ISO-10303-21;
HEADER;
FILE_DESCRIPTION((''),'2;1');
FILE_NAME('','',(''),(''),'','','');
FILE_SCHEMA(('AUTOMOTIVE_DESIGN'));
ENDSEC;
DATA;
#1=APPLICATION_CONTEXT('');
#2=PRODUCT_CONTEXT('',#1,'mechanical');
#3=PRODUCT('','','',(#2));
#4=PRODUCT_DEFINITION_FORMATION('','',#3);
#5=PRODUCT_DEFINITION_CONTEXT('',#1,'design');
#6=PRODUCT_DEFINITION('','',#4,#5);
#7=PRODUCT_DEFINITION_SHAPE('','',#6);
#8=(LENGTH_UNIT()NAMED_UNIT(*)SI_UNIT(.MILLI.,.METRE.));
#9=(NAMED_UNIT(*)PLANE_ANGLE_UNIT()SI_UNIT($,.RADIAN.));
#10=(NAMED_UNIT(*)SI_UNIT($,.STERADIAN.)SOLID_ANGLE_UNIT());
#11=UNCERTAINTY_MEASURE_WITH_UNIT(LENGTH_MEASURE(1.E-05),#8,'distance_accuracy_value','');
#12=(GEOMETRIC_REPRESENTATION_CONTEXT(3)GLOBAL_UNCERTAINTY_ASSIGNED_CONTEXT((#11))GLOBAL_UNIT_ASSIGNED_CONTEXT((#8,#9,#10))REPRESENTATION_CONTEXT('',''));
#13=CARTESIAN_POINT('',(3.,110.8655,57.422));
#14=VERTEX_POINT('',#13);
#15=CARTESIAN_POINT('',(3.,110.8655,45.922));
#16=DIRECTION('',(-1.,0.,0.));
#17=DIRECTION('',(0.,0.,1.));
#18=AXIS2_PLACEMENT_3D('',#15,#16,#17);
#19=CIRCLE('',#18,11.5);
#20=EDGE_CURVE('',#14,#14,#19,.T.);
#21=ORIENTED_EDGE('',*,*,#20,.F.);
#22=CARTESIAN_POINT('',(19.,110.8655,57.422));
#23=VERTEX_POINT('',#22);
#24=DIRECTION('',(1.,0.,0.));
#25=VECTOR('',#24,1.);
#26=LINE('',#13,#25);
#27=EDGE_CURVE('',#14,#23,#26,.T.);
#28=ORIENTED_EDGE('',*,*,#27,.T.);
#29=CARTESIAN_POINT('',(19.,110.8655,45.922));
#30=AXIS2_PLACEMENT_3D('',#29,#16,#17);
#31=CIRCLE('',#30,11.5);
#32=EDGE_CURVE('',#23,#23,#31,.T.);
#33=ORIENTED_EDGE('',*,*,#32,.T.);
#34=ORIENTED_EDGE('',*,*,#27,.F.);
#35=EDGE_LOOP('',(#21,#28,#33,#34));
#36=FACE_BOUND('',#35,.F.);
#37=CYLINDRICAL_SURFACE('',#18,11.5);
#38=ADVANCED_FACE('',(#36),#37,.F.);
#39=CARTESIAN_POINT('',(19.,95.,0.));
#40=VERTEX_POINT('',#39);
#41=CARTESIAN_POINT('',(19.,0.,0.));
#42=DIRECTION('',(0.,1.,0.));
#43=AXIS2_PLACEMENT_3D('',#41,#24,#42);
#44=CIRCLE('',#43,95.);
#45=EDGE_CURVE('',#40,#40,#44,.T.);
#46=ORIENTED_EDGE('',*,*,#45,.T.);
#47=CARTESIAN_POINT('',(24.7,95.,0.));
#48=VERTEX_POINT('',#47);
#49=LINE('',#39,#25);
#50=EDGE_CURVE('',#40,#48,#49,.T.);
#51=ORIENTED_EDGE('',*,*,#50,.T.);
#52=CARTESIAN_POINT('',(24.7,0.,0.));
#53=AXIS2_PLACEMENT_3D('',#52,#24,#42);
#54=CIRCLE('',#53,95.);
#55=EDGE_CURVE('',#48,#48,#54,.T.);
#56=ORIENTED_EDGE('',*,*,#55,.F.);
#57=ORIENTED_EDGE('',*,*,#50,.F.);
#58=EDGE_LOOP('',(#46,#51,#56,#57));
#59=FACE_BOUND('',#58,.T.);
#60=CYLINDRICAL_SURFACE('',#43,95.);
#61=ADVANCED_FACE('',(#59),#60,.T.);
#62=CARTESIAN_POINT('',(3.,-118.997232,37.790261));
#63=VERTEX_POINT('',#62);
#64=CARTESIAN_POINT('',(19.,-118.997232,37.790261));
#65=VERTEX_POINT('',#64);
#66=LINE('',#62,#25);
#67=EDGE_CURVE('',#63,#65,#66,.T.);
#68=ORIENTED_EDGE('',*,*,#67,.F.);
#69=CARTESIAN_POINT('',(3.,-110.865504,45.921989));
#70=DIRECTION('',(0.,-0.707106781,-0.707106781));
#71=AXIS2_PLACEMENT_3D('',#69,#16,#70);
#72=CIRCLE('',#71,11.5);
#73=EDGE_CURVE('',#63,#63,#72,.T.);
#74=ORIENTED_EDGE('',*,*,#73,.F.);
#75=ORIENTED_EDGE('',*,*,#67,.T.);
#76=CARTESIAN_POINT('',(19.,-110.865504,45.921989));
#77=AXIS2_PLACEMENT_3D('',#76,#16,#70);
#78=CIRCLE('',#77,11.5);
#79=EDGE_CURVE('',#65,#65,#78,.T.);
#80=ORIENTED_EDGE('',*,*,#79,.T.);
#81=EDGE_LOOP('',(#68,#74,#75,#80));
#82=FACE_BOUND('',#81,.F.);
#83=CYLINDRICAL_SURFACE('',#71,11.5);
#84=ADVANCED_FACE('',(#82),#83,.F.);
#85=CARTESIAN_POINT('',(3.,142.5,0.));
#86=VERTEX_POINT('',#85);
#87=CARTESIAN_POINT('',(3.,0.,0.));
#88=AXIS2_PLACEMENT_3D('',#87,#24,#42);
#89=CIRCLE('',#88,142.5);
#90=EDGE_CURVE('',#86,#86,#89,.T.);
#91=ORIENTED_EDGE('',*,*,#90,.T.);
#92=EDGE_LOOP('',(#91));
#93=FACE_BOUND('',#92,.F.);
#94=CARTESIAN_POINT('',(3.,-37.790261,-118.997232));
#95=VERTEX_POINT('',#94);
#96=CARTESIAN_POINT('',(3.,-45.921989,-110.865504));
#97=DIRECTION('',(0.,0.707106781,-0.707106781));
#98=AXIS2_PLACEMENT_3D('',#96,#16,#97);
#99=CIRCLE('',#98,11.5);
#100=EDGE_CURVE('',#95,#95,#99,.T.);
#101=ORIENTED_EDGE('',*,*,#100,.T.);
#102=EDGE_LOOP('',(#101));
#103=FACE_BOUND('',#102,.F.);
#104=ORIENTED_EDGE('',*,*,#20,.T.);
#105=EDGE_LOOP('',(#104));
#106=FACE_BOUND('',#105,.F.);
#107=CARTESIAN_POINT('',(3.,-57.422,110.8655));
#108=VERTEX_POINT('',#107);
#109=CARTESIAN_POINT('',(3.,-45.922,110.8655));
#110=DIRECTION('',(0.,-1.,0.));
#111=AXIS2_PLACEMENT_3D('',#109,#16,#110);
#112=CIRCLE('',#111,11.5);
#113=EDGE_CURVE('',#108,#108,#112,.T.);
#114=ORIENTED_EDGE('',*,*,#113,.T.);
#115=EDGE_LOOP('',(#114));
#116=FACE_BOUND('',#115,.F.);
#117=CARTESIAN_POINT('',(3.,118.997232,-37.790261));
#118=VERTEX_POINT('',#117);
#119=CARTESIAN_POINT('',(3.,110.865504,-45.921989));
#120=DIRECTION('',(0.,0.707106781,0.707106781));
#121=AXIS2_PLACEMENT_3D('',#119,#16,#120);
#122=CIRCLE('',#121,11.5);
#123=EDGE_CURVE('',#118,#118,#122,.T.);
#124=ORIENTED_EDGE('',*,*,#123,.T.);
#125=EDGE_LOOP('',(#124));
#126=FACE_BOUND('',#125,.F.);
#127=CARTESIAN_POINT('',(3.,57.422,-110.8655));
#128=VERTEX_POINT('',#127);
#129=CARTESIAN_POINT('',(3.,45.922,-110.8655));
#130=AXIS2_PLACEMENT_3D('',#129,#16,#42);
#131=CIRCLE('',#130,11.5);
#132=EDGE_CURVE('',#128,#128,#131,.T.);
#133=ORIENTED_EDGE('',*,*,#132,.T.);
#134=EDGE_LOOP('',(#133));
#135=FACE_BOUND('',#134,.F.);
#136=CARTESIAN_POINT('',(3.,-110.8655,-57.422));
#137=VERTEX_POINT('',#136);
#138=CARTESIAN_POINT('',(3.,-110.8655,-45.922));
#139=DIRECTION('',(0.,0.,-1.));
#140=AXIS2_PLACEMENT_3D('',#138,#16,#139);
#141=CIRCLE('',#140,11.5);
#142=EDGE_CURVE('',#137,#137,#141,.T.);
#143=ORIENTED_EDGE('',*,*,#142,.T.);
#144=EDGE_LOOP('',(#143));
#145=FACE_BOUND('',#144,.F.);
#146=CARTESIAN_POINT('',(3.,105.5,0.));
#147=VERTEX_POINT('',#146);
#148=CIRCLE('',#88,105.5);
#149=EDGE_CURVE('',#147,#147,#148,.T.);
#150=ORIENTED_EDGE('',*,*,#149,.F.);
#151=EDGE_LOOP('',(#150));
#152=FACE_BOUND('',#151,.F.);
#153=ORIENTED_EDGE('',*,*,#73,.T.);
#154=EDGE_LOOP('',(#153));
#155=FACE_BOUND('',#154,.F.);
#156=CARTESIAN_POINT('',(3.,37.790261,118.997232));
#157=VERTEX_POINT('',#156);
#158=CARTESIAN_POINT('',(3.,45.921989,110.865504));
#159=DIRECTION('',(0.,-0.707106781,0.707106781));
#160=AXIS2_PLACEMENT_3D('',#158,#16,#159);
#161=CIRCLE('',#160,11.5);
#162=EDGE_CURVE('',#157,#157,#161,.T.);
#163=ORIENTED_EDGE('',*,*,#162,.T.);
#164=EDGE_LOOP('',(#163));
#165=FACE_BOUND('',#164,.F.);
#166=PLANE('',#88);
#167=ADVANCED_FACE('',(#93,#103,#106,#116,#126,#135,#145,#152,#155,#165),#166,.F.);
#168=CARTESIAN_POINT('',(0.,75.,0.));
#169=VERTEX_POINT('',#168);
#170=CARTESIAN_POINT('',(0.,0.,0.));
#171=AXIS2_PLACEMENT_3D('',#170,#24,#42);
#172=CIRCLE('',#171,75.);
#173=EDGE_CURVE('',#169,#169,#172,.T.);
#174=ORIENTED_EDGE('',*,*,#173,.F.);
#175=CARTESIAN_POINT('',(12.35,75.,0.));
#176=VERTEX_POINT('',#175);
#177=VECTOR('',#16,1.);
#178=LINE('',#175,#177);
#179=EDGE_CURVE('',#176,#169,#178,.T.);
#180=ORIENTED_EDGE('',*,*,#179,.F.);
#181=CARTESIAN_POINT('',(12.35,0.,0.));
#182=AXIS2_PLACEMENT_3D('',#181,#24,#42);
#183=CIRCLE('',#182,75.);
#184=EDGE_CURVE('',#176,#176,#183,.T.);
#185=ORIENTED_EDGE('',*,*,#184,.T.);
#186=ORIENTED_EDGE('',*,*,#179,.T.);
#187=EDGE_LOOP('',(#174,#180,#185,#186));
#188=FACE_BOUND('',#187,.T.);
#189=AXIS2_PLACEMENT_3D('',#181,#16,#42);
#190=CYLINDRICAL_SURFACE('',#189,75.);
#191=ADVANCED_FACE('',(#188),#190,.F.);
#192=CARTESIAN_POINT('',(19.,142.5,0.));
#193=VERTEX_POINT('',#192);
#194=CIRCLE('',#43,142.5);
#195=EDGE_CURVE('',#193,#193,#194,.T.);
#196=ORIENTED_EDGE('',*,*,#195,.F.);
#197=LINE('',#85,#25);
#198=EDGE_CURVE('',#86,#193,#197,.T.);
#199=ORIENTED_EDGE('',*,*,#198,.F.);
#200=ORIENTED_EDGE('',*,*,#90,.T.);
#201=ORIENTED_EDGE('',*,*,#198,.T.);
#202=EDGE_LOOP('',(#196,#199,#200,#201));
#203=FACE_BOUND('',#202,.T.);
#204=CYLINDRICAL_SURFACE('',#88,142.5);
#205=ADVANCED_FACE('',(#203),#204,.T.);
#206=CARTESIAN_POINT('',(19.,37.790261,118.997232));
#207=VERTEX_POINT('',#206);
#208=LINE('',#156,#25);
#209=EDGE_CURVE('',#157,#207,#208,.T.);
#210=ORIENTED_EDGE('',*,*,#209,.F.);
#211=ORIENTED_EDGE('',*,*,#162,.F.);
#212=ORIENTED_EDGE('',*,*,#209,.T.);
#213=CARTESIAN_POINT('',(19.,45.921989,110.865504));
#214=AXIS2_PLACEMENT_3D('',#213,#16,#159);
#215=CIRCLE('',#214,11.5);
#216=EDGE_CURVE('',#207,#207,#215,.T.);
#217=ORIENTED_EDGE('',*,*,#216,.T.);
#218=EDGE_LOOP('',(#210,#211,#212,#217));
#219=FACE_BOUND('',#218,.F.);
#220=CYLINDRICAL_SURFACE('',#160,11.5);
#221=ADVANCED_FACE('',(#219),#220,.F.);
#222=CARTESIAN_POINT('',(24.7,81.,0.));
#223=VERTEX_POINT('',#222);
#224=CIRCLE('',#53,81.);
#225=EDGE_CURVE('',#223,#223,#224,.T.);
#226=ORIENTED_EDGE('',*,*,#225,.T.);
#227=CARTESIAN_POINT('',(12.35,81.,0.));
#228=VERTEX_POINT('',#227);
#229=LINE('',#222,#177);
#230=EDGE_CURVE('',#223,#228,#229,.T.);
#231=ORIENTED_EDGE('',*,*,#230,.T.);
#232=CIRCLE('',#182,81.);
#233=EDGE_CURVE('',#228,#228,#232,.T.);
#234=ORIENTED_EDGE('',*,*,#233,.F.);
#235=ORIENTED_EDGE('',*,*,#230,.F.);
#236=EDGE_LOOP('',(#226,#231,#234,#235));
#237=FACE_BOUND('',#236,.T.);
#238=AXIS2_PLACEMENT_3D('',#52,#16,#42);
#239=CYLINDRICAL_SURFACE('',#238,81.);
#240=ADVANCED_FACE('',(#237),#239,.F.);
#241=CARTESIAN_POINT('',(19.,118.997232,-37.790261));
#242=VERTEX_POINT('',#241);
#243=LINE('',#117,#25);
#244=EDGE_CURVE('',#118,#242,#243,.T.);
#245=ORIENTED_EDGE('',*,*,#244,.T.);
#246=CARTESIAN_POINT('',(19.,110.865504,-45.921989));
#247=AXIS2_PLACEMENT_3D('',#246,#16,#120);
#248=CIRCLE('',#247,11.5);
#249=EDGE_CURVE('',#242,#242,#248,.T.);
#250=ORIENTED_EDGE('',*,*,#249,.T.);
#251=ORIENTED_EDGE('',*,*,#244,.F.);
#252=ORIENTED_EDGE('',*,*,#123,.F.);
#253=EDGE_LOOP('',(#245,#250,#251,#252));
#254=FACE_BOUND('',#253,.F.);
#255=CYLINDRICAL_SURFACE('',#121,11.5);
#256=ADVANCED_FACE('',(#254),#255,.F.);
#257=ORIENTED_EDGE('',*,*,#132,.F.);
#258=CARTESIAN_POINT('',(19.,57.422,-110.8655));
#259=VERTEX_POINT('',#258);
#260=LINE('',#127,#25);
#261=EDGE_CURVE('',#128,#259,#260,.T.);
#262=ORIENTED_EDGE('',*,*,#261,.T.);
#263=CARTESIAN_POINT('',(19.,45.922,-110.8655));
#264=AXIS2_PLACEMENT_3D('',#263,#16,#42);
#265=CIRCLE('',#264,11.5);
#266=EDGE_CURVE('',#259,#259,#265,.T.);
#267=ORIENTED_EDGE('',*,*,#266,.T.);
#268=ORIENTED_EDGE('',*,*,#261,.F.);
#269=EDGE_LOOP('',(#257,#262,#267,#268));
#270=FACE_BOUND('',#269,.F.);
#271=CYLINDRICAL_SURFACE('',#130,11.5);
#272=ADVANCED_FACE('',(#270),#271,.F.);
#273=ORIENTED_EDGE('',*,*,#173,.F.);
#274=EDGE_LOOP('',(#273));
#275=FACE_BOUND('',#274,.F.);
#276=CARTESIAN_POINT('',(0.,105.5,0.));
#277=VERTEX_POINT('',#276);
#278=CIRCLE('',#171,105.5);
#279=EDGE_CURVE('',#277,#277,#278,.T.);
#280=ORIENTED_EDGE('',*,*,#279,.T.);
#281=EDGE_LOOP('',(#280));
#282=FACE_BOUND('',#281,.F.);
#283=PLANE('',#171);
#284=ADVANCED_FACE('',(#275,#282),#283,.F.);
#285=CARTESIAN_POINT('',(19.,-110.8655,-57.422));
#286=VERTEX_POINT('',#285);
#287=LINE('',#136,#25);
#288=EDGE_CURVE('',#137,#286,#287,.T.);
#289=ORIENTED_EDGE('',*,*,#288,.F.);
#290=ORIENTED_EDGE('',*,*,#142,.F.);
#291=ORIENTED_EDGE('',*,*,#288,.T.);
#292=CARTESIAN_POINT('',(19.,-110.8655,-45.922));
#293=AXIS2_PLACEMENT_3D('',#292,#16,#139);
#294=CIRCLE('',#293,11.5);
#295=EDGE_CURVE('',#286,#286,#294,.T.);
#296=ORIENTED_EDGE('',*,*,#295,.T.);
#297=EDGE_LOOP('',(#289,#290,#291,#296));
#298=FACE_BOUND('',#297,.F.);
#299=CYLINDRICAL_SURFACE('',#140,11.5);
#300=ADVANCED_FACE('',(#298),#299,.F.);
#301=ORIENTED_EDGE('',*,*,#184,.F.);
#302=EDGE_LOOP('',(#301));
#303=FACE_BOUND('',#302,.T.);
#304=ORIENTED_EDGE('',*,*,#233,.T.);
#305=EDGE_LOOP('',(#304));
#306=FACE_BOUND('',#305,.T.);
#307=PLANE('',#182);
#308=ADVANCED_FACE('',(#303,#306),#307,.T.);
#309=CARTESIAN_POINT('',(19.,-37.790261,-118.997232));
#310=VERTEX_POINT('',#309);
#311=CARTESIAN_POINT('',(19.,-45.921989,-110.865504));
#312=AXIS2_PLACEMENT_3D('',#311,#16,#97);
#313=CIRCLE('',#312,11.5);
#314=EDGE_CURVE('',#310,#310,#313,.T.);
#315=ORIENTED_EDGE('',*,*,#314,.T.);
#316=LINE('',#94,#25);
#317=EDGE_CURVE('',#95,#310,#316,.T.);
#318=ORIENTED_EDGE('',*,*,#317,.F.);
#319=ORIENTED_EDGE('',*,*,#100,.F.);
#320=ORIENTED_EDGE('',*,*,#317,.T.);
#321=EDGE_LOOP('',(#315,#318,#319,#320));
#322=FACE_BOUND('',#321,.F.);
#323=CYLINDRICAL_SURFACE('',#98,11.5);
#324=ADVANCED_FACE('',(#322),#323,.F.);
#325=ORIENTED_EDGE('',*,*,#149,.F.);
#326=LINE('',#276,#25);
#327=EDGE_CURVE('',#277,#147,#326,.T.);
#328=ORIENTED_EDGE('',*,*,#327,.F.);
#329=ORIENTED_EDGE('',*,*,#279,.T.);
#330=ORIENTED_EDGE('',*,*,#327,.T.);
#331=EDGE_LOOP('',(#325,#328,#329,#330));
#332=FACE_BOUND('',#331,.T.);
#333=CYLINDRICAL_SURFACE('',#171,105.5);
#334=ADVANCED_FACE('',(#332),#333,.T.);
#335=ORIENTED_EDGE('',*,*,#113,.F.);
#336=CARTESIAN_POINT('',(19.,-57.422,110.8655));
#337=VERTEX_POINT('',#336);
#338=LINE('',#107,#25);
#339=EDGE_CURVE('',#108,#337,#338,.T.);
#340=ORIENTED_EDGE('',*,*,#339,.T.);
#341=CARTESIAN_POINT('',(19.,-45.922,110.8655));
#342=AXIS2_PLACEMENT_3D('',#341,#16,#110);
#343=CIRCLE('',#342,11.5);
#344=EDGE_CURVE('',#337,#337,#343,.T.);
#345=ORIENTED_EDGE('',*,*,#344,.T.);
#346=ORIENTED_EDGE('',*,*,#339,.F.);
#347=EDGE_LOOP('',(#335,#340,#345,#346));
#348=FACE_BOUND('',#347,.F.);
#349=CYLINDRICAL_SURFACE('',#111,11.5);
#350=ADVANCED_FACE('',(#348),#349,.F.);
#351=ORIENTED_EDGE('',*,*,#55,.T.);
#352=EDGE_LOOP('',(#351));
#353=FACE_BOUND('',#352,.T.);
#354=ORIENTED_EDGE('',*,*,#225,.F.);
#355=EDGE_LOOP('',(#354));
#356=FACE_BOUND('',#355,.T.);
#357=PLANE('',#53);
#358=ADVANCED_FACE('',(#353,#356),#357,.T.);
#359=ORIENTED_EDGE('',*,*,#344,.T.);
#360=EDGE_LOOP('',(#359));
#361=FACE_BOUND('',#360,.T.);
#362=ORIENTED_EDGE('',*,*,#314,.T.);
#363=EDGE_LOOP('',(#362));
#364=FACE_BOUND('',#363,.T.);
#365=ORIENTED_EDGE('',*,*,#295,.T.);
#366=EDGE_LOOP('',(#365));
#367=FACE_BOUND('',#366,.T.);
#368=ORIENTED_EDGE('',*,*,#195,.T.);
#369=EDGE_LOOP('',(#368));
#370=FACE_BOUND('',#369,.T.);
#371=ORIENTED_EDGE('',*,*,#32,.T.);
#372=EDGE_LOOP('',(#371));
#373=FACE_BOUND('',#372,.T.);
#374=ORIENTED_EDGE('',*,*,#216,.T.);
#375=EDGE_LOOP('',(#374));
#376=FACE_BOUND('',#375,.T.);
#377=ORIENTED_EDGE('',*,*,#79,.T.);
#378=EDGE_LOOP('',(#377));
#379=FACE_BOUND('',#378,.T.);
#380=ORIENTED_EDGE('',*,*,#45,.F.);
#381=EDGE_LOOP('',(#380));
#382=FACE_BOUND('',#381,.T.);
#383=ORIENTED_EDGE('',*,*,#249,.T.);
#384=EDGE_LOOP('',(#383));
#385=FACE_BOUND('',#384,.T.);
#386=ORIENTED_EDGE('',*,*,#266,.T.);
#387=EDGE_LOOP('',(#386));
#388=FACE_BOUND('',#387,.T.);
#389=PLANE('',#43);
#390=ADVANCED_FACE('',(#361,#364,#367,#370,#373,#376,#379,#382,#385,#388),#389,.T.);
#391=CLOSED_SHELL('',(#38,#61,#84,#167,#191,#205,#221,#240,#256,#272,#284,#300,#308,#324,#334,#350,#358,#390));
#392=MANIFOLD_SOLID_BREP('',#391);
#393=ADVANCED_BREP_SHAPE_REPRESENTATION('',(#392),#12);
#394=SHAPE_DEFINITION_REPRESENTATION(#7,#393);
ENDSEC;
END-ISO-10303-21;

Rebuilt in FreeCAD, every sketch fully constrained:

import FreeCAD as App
import Part
import Sketcher
Q = App.Units.Quantity

doc = App.newDocument("Part")
body = doc.addObject("PartDesign::Body", "Body")

# Sketch on XY plane
sketch1 = body.newObject("Sketcher::SketchObject", "Sketch")
sketch1.AttachmentSupport = (doc.getObject("XY_Plane"), [""])
sketch1.MapMode = "FlatFace"
sketch1.addGeometry([
    Part.LineSegment(App.Vector(3, 105.5, 0), App.Vector(0, 105.5, 0)),  # 0
    Part.LineSegment(App.Vector(0, 105.5, 0), App.Vector(0, 75, 0)),  # 1
    Part.LineSegment(App.Vector(0, 75, 0), App.Vector(12.3, 75, 0)),  # 2
    Part.LineSegment(App.Vector(12.3, 75, 0), App.Vector(12.3, 81, 0)),  # 3
    Part.LineSegment(App.Vector(12.3, 81, 0), App.Vector(24.7, 81, 0)),  # 4
    Part.LineSegment(App.Vector(24.7, 81, 0), App.Vector(24.7, 95, 0)),  # 5
    Part.LineSegment(App.Vector(24.7, 95, 0), App.Vector(19, 95, 0)),  # 6
    Part.LineSegment(App.Vector(19, 95, 0), App.Vector(19, 142.5, 0)),  # 7
    Part.LineSegment(App.Vector(19, 142.5, 0), App.Vector(3, 142.5, 0)),  # 8
    Part.LineSegment(App.Vector(3, 142.5, 0), App.Vector(3, 105.5, 0)),  # 9
], False)
sketch1.addConstraint([
    Sketcher.Constraint("Coincident", 0, 2, 1, 1),
    Sketcher.Constraint("Coincident", 1, 2, 2, 1),
    Sketcher.Constraint("Coincident", 2, 2, 3, 1),
    Sketcher.Constraint("Coincident", 3, 2, 4, 1),
    Sketcher.Constraint("Coincident", 4, 2, 5, 1),
    Sketcher.Constraint("Coincident", 5, 2, 6, 1),
    Sketcher.Constraint("Coincident", 6, 2, 7, 1),
    Sketcher.Constraint("Coincident", 7, 2, 8, 1),
    Sketcher.Constraint("Coincident", 8, 2, 9, 1),
    Sketcher.Constraint("Coincident", 9, 2, 0, 1),
    Sketcher.Constraint("Horizontal", 0),
    Sketcher.Constraint("Vertical", 1),
    Sketcher.Constraint("Horizontal", 2),
    Sketcher.Constraint("Vertical", 3),
    Sketcher.Constraint("Horizontal", 4),
    Sketcher.Constraint("Vertical", 5),
    Sketcher.Constraint("Horizontal", 6),
    Sketcher.Constraint("Vertical", 7),
    Sketcher.Constraint("Horizontal", 8),
    Sketcher.Constraint("Vertical", 9),
    Sketcher.Constraint("PointOnObject", 0, 2, -2),
    Sketcher.Constraint("Equal", 2, 4),
    Sketcher.Constraint("DistanceX", 0, 2, 0, 1, Q("3 mm")),
    Sketcher.Constraint("DistanceX", -1, 1, 6, 2, Q("19 mm")),
    Sketcher.Constraint("DistanceX", 2, 1, 2, 2, Q("12.35 mm")),
    Sketcher.Constraint("DistanceY", 3, 1, 3, 2, Q("6 mm")),
    Sketcher.Constraint("DistanceY", 5, 1, 5, 2, Q("14 mm")),
    Sketcher.Constraint("DistanceY", 9, 2, 9, 1, Q("37 mm")),
    Sketcher.Constraint("DistanceY", 1, 2, 1, 1, Q("30.5 mm")),
    Sketcher.Constraint("DistanceY", -1, 1, 1, 2, Q("75 mm")),
])
revolution = body.newObject("PartDesign::Revolution", "Revolution")
revolution.Profile = sketch1
revolution.ReferenceAxis = (sketch1, ["H_Axis"])
revolution.Angle = 360

# Sketch on YZ plane
sketch2 = body.newObject("Sketcher::SketchObject", "Sketch001")
sketch2.AttachmentSupport = (doc.getObject("YZ_Plane"), [""])
sketch2.MapMode = "FlatFace"
sketch2.AttachmentOffset = App.Placement(App.Vector(0, 0, 3), App.Rotation())
sketch2.addGeometry(Part.Circle(App.Vector(111, 46, 0), App.Vector(0, 0, 1), 12), False)
sketch2.addConstraint([
    Sketcher.Constraint("Diameter", 0, Q("23 mm")),
    Sketcher.Constraint("DistanceY", -1, 1, 0, 3, Q("45.922 mm")),
    Sketcher.Constraint("DistanceX", -1, 1, 0, 3, Q("110.8655 mm")),
])
pocket1 = body.newObject("PartDesign::Pocket", "Pocket")
pocket1.Profile = sketch2
pocket1.Length = 19
pocket1.Reversed = True
doc.recompute()

polarpattern = body.newObject("PartDesign::PolarPattern", "PolarPattern")
polarpattern.Originals = [pocket1]
polarpattern.Axis = (doc.getObject("X_Axis"), [""])
polarpattern.Angle = 360
polarpattern.Occurrences = 8
body.Tip = polarpattern

doc.recompute()
